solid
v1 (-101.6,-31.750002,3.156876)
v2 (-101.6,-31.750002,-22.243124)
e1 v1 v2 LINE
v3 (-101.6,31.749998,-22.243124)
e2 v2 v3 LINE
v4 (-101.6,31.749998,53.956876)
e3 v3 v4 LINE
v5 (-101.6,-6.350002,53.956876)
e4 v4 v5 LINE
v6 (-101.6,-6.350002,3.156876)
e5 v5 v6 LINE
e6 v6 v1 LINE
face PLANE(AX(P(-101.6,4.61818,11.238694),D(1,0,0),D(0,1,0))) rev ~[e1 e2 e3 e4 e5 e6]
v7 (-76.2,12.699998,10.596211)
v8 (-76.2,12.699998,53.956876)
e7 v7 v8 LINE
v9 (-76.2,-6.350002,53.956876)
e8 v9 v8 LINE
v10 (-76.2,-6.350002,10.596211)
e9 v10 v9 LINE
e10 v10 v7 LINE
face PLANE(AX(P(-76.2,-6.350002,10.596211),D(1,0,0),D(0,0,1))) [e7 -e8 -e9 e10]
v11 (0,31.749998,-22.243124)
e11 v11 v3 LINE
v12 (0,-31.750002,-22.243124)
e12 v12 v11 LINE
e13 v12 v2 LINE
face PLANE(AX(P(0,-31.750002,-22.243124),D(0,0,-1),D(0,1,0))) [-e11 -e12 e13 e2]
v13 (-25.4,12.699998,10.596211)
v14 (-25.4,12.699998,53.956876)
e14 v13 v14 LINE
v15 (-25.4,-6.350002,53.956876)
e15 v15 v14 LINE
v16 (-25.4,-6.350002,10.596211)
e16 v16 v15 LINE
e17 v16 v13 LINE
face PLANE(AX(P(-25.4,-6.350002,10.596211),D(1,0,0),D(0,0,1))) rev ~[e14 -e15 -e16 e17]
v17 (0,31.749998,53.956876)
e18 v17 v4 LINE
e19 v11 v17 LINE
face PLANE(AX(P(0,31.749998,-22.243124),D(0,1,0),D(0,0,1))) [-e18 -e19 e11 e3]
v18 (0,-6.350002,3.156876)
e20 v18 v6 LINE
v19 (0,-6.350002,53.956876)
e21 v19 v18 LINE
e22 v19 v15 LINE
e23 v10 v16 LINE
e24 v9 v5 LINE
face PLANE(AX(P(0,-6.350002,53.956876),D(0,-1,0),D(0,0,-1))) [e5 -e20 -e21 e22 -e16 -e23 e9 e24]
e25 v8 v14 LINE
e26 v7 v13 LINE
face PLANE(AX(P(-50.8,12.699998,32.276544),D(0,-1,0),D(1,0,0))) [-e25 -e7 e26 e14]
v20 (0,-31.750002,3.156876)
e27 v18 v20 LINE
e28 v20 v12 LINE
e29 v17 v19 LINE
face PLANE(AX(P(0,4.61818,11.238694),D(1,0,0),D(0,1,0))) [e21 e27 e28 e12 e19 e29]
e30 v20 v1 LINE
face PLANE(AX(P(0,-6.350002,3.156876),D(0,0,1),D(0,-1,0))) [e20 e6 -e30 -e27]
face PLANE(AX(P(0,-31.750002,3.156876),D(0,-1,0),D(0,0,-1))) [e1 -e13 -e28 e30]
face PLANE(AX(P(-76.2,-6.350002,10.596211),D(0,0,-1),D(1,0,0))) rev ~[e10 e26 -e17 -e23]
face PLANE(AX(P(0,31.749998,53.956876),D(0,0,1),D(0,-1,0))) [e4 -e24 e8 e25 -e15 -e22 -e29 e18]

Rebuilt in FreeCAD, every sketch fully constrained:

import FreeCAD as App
import Part
import Sketcher
from FreeCAD import Vector
Q = App.Units.Quantity


def add_polygon(sketch, points):
    """Adds a closed chain of lines whose ends are joined by coincident constraints."""
    first, n = sketch.GeometryCount, len(points)
    for a, b in zip(points, points[1:] + points[:1]):
        sketch.addGeometry(Part.LineSegment(App.Vector(*a, 0), App.Vector(*b, 0)), False)
    for i in range(n):
        sketch.addConstraint(Sketcher.Constraint("Coincident", first + i, 2, first + (i + 1) % n, 1))

doc = App.newDocument("Part")
body = doc.addObject("PartDesign::Body", "Body")

sketch1 = doc.addObject("Sketcher::SketchObject", "Sketch")
body.addObject(sketch1)
sketch1.AttachmentSupport = (doc.YZ_Plane, [""])
sketch1.MapMode = "FlatFace"
add_polygon(sketch1, [(-31.750002, 3.156876), (-31.750002, -22.243124), (31.749998, -22.243124), (31.749998, 53.956876), (-6.350002, 53.956876), (-6.350002, 3.156876)])
sketch1.addConstraint(Sketcher.Constraint("Vertical", 0))
sketch1.addConstraint(Sketcher.Constraint("Horizontal", 1))
sketch1.addConstraint(Sketcher.Constraint("Vertical", 2))
sketch1.addConstraint(Sketcher.Constraint("Horizontal", 3))
sketch1.addConstraint(Sketcher.Constraint("Vertical", 4))
sketch1.addConstraint(Sketcher.Constraint("Horizontal", 5))
sketch1.addConstraint(Sketcher.Constraint("Equal", 5, 0))
sketch1.addConstraint(Sketcher.Constraint("DistanceX", 5, 2, 5, 1, Q("1 in")))
sketch1.addConstraint(Sketcher.Constraint("DistanceY", 2, 1, 2, 2, Q("3 in")))
sketch1.addConstraint(Sketcher.Constraint("DistanceX", 1, 1, 1, 2, Q("2.5 in")))
sketch1.addConstraint(Sketcher.Constraint("DistanceX", 0, 2, -1, 1, Q("1.2500001 in")))
sketch1.addConstraint(Sketcher.Constraint("DistanceY", 0, 2, -1, 1, Q("22.243124 mm")))
pad1 = doc.addObject("PartDesign::Pad", "Pad")
body.addObject(pad1)
pad1.Profile = sketch1
pad1.Length = Q("4 in")
pad1.Reversed = True

sketch2 = doc.addObject("Sketcher::SketchObject", "Sketch001")
body.addObject(sketch2)
sketch2.AttachmentSupport = (doc.XZ_Plane, [""])
sketch2.MapMode = "FlatFace"
sketch2.AttachmentOffset = App.Placement(Vector(0, 0, 0.2500001 * 25.4), App.Rotation())
add_polygon(sketch2, [(-76.2, 53.956876), (-76.2, 10.596211), (-25.4, 10.596211), (-25.4, 53.956876)])
sketch2.addConstraint(Sketcher.Constraint("Vertical", 0))
sketch2.addConstraint(Sketcher.Constraint("Horizontal", 1))
sketch2.addConstraint(Sketcher.Constraint("Vertical", 2))
sketch2.addConstraint(Sketcher.Constraint("Horizontal", 3))
sketch2.addConstraint(Sketcher.Constraint("DistanceX", 1, 1, 1, 2, Q("2 in")))
sketch2.addConstraint(Sketcher.Constraint("DistanceX", 0, 2, -1, 1, Q("3 in")))
sketch2.addConstraint(Sketcher.Constraint("DistanceY", 0, 2, 0, 1, Q("43.360665 mm")))
sketch2.addConstraint(Sketcher.Constraint("DistanceY", -1, 1, 0, 2, Q("10.596211 mm")))
pocket1 = doc.addObject("PartDesign::Pocket", "Pocket")
body.addObject(pocket1)
pocket1.Profile = sketch2
pocket1.Length = Q("0.75 in")

doc.recompute()
